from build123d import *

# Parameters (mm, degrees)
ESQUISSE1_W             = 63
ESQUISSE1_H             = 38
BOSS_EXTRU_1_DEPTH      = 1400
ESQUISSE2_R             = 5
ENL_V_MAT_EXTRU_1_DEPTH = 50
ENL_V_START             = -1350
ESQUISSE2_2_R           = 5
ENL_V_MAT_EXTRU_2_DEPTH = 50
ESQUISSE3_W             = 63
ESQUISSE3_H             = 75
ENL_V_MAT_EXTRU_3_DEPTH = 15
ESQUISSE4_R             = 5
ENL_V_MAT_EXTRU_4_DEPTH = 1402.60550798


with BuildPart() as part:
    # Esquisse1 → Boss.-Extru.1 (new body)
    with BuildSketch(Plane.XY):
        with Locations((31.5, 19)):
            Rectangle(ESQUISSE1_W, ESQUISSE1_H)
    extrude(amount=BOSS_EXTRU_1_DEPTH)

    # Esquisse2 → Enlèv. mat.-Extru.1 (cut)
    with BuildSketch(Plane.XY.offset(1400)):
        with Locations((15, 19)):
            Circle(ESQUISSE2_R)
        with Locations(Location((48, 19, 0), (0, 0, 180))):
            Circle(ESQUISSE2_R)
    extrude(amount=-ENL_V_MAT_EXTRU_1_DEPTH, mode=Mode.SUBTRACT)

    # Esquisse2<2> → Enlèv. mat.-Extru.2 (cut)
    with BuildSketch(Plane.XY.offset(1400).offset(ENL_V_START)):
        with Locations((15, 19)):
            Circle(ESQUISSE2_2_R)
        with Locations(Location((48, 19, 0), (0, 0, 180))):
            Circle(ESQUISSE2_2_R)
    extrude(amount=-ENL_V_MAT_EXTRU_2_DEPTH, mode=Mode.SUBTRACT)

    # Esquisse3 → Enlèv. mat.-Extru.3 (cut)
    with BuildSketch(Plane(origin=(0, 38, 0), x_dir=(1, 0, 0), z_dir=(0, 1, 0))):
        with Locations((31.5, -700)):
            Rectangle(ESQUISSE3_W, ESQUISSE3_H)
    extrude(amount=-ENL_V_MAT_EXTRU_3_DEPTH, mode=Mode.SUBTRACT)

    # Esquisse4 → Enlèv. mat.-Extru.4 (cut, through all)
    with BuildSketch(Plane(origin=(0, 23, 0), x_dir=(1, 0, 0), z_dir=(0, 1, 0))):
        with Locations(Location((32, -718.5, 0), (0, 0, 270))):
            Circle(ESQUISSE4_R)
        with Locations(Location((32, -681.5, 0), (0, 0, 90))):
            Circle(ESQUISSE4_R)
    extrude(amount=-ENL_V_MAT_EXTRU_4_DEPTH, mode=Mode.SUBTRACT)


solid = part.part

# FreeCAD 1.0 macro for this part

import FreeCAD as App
import Part
import Sketcher
from FreeCAD import Vector

doc = App.newDocument("Part")
body = doc.addObject("PartDesign::Body", "Body")

# Sketch on XY plane
sketch1 = body.newObject("Sketcher::SketchObject", "Sketch")
sketch1.AttachmentSupport = (doc.getObject("XY_Plane"), [""])
sketch1.MapMode = "FlatFace"
sketch1.addGeometry(Part.LineSegment(Vector(0, 38, 0), Vector(0, 0, 0)), False)
sketch1.addGeometry(Part.LineSegment(Vector(0, 0, 0), Vector(63, 0, 0)), False)
sketch1.addGeometry(Part.LineSegment(Vector(63, 0, 0), Vector(63, 38, 0)), False)
sketch1.addGeometry(Part.LineSegment(Vector(63, 38, 0), Vector(0, 38, 0)), False)
sketch1.addConstraint(Sketcher.Constraint("Coincident", 0, 2, 1, 1))
sketch1.addConstraint(Sketcher.Constraint("Coincident", 1, 2, 2, 1))
sketch1.addConstraint(Sketcher.Constraint("Coincident", 2, 2, 3, 1))
sketch1.addConstraint(Sketcher.Constraint("Coincident", 3, 2, 0, 1))
sketch1.addConstraint(Sketcher.Constraint("Vertical", 0))
sketch1.addConstraint(Sketcher.Constraint("Horizontal", 1))
sketch1.addConstraint(Sketcher.Constraint("Vertical", 2))
sketch1.addConstraint(Sketcher.Constraint("Horizontal", 3))
sketch1.addConstraint(Sketcher.Constraint("Coincident", 0, 2, -1, 1))
sketch1.addConstraint(Sketcher.Constraint("DistanceX", 1, 1, 1, 2, 63.0))
sketch1.addConstraint(Sketcher.Constraint("DistanceY", 0, 2, 0, 1, 38.0))
pad1 = body.newObject("PartDesign::Pad", "Pad")
pad1.Profile = sketch1
pad1.Length = 1400

# Sketch on XY plane
sketch2 = body.newObject("Sketcher::SketchObject", "Sketch001")
sketch2.AttachmentSupport = (doc.getObject("XY_Plane"), [""])
sketch2.MapMode = "FlatFace"
sketch2.AttachmentOffset = App.Placement(Vector(0, 0, 1400), App.Rotation())
sketch2.addGeometry(Part.Circle(Vector(15, 19, 0), Vector(0, 0, 1), 5), False)
sketch2.addGeometry(Part.Circle(Vector(48, 19, 0), Vector(0, 0, 1), 5), False)
sketch2.addConstraint(Sketcher.Constraint("Equal", 0, 1))
sketch2.addConstraint(Sketcher.Constraint("Horizontal", 0, 3, 1, 3))
sketch2.addConstraint(Sketcher.Constraint("Diameter", 0, 10.0))
sketch2.addConstraint(Sketcher.Constraint("DistanceX", -1, 1, 0, 3, 15.0))
sketch2.addConstraint(Sketcher.Constraint("DistanceY", -1, 1, 0, 3, 19.0))
sketch2.addConstraint(Sketcher.Constraint("DistanceX", -1, 1, 1, 3, 48.0))
pocket1 = body.newObject("PartDesign::Pocket", "Pocket")
pocket1.Profile = sketch2
pocket1.Length = 50

# Sketch on XY plane
sketch3 = body.newObject("Sketcher::SketchObject", "Sketch002")
sketch3.AttachmentSupport = (doc.getObject("XY_Plane"), [""])
sketch3.MapMode = "FlatFace"
sketch3.AttachmentOffset = App.Placement(Vector(0, 0, 50), App.Rotation())
sketch3.addGeometry(Part.Circle(Vector(15, 19, 0), Vector(0, 0, 1), 5), False)
sketch3.addGeometry(Part.Circle(Vector(48, 19, 0), Vector(0, 0, 1), 5), False)
sketch3.addConstraint(Sketcher.Constraint("Equal", 0, 1))
sketch3.addConstraint(Sketcher.Constraint("Horizontal", 0, 3, 1, 3))
sketch3.addConstraint(Sketcher.Constraint("Diameter", 0, 10.0))
sketch3.addConstraint(Sketcher.Constraint("DistanceX", -1, 1, 0, 3, 15.0))
sketch3.addConstraint(Sketcher.Constraint("DistanceY", -1, 1, 0, 3, 19.0))
sketch3.addConstraint(Sketcher.Constraint("DistanceX", -1, 1, 1, 3, 48.0))
pocket2 = body.newObject("PartDesign::Pocket", "Pocket001")
pocket2.Profile = sketch3
pocket2.Length = 50

# Sketch on XZ plane
sketch4 = body.newObject("Sketcher::SketchObject", "Sketch003")
sketch4.AttachmentSupport = (doc.getObject("XZ_Plane"), [""])
sketch4.MapMode = "FlatFace"
sketch4.AttachmentOffset = App.Placement(Vector(0, 0, -38), App.Rotation())
sketch4.addGeometry(Part.LineSegment(Vector(0, 662.5, 0), Vector(0, 737.5, 0)), False)
sketch4.addGeometry(Part.LineSegment(Vector(0, 737.5, 0), Vector(63, 737.5, 0)), False)
sketch4.addGeometry(Part.LineSegment(Vector(63, 737.5, 0), Vector(63, 662.5, 0)), False)
sketch4.addGeometry(Part.LineSegment(Vector(63, 662.5, 0), Vector(0, 662.5, 0)), False)
sketch4.addConstraint(Sketcher.Constraint("Coincident", 0, 2, 1, 1))
sketch4.addConstraint(Sketcher.Constraint("Coincident", 1, 2, 2, 1))
sketch4.addConstraint(Sketcher.Constraint("Coincident", 2, 2, 3, 1))
sketch4.addConstraint(Sketcher.Constraint("Coincident", 3, 2, 0, 1))
sketch4.addConstraint(Sketcher.Constraint("Vertical", 0))
sketch4.addConstraint(Sketcher.Constraint("Horizontal", 1))
sketch4.addConstraint(Sketcher.Constraint("Vertical", 2))
sketch4.addConstraint(Sketcher.Constraint("Horizontal", 3))
sketch4.addConstraint(Sketcher.Constraint("PointOnObject", 0, 2, -2))
sketch4.addConstraint(Sketcher.Constraint("DistanceX", 1, 1, 1, 2, 63.0))
sketch4.addConstraint(Sketcher.Constraint("DistanceY", 0, 1, 0, 2, 75.0))
sketch4.addConstraint(Sketcher.Constraint("DistanceY", -1, 1, 0, 2, 737.5))
pocket3 = body.newObject("PartDesign::Pocket", "Pocket002")
pocket3.Profile = sketch4
pocket3.Length = 15
pocket3.Reversed = True

# Sketch on XZ plane
sketch5 = body.newObject("Sketcher::SketchObject", "Sketch004")
sketch5.AttachmentSupport = (doc.getObject("XZ_Plane"), [""])
sketch5.MapMode = "FlatFace"
sketch5.AttachmentOffset = App.Placement(Vector(0, 0, -23), App.Rotation())
sketch5.addGeometry(Part.Circle(Vector(32, 718.5, 0), Vector(0, 0, 1), 5), False)
sketch5.addGeometry(Part.Circle(Vector(32, 681.5, 0), Vector(0, 0, 1), 5), False)
sketch5.addConstraint(Sketcher.Constraint("Equal", 0, 1))
sketch5.addConstraint(Sketcher.Constraint("Vertical", 0, 3, 1, 3))
sketch5.addConstraint(Sketcher.Constraint("Diameter", 0, 10.0))
sketch5.addConstraint(Sketcher.Constraint("DistanceX", -1, 1, 0, 3, 32.0))
sketch5.addConstraint(Sketcher.Constraint("DistanceY", 1, 3, 0, 3, 37.0))
sketch5.addConstraint(Sketcher.Constraint("DistanceY", -1, 1, 0, 3, 718.5))
pocket4 = body.newObject("PartDesign::Pocket", "Pocket003")
pocket4.Profile = sketch5
pocket4.Type = "ThroughAll"
pocket4.Reversed = True

doc.recompute()
